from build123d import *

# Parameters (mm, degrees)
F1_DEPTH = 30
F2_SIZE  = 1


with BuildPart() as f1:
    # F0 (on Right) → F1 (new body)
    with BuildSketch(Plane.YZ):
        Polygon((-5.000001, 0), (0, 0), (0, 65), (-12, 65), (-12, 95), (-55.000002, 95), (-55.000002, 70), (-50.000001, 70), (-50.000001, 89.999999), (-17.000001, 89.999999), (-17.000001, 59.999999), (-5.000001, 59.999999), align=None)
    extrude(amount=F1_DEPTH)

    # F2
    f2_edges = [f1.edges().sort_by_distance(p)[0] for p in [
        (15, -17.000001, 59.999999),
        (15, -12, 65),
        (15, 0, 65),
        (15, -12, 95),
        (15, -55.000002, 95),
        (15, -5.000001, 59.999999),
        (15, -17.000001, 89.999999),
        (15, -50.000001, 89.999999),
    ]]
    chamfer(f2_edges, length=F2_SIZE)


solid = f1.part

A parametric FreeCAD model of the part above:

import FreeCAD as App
import Part
import Sketcher


def edges_at(feature, points):
    """Names of the edges that pass closest to the given points."""
    edges = feature.Shape.Edges
    near = lambda p: min(range(len(edges)), key=lambda i: edges[i].distToShape(Part.Vertex(*p))[0])
    return sorted({f"Edge{near(p) + 1}" for p in points})

doc = App.newDocument("Part")
body = doc.addObject("PartDesign::Body", "Body")

# Sketch on YZ plane
sketch1 = body.newObject("Sketcher::SketchObject", "Sketch")
sketch1.AttachmentSupport = (doc.getObject("YZ_Plane"), [""])
sketch1.MapMode = "FlatFace"
sketch1.addGeometry(Part.LineSegment(App.Vector(-5.000001, 0, 0), App.Vector(0, 0, 0)), False)
sketch1.addGeometry(Part.LineSegment(App.Vector(0, 0, 0), App.Vector(0, 65, 0)), False)
sketch1.addGeometry(Part.LineSegment(App.Vector(0, 65, 0), App.Vector(-12, 65, 0)), False)
sketch1.addGeometry(Part.LineSegment(App.Vector(-12, 65, 0), App.Vector(-12, 95, 0)), False)
sketch1.addGeometry(Part.LineSegment(App.Vector(-12, 95, 0), App.Vector(-55.000002, 95, 0)), False)
sketch1.addGeometry(Part.LineSegment(App.Vector(-55.000002, 95, 0), App.Vector(-55.000002, 70, 0)), False)
sketch1.addGeometry(Part.LineSegment(App.Vector(-55.000002, 70, 0), App.Vector(-50.000001, 70, 0)), False)
sketch1.addGeometry(Part.LineSegment(App.Vector(-50.000001, 70, 0), App.Vector(-50.000001, 89.999999, 0)), False)
sketch1.addGeometry(Part.LineSegment(App.Vector(-50.000001, 89.999999, 0), App.Vector(-17.000001, 89.999999, 0)), False)
sketch1.addGeometry(Part.LineSegment(App.Vector(-17.000001, 89.999999, 0), App.Vector(-17.000001, 59.999999, 0)), False)
sketch1.addGeometry(Part.LineSegment(App.Vector(-17.000001, 59.999999, 0), App.Vector(-5.000001, 59.999999, 0)), False)
sketch1.addGeometry(Part.LineSegment(App.Vector(-5.000001, 59.999999, 0), App.Vector(-5.000001, 0, 0)), False)
sketch1.addConstraint(Sketcher.Constraint("Coincident", 0, 2, 1, 1))
sketch1.addConstraint(Sketcher.Constraint("Coincident", 1, 2, 2, 1))
sketch1.addConstraint(Sketcher.Constraint("Coincident", 2, 2, 3, 1))
sketch1.addConstraint(Sketcher.Constraint("Coincident", 3, 2, 4, 1))
sketch1.addConstraint(Sketcher.Constraint("Coincident", 4, 2, 5, 1))
sketch1.addConstraint(Sketcher.Constraint("Coincident", 5, 2, 6, 1))
sketch1.addConstraint(Sketcher.Constraint("Coincident", 6, 2, 7, 1))
sketch1.addConstraint(Sketcher.Constraint("Coincident", 7, 2, 8, 1))
sketch1.addConstraint(Sketcher.Constraint("Coincident", 8, 2, 9, 1))
sketch1.addConstraint(Sketcher.Constraint("Coincident", 9, 2, 10, 1))
sketch1.addConstraint(Sketcher.Constraint("Coincident", 10, 2, 11, 1))
sketch1.addConstraint(Sketcher.Constraint("Coincident", 11, 2, 0, 1))
sketch1.addConstraint(Sketcher.Constraint("Horizontal", 0))
sketch1.addConstraint(Sketcher.Constraint("Vertical", 1))
sketch1.addConstraint(Sketcher.Constraint("Horizontal", 2))
sketch1.addConstraint(Sketcher.Constraint("Vertical", 3))
sketch1.addConstraint(Sketcher.Constraint("Horizontal", 4))
sketch1.addConstraint(Sketcher.Constraint("Vertical", 5))
sketch1.addConstraint(Sketcher.Constraint("Horizontal", 6))
sketch1.addConstraint(Sketcher.Constraint("Vertical", 7))
sketch1.addConstraint(Sketcher.Constraint("Horizontal", 8))
sketch1.addConstraint(Sketcher.Constraint("Vertical", 9))
sketch1.addConstraint(Sketcher.Constraint("Horizontal", 10))
sketch1.addConstraint(Sketcher.Constraint("Vertical", 11))
sketch1.addConstraint(Sketcher.Constraint("Coincident", 0, 2, -1, 1))
sketch1.addConstraint(Sketcher.Constraint("Equal", 0, 6))
sketch1.addConstraint(Sketcher.Constraint("Equal", 2, 10))
sketch1.addConstraint(Sketcher.Constraint("Equal", 3, 9))
sketch1.addConstraint(Sketcher.Constraint("DistanceX", 0, 1, 0, 2, 5.000001))
sketch1.addConstraint(Sketcher.Constraint("DistanceX", 2, 2, 2, 1, 12.0))
sketch1.addConstraint(Sketcher.Constraint("DistanceX", 8, 1, 8, 2, 33.0))
sketch1.addConstraint(Sketcher.Constraint("DistanceY", 1, 1, 1, 2, 65.0))
sketch1.addConstraint(Sketcher.Constraint("DistanceY", 3, 1, 3, 2, 30.0))
sketch1.addConstraint(Sketcher.Constraint("DistanceY", 5, 2, 5, 1, 25.0))
sketch1.addConstraint(Sketcher.Constraint("DistanceY", 7, 1, 7, 2, 19.999999))
pad1 = body.newObject("PartDesign::Pad", "Pad")
pad1.Profile = sketch1
pad1.Length = 30
doc.recompute()

chamfer = body.newObject("PartDesign::Chamfer", "Chamfer")
chamfer.Base = (pad1, edges_at(pad1, [
    (15, -17, 60),
    (15, -12, 65),
    (15, 0, 65),
    (15, -12, 95),
    (15, -55, 95),
    (15, -5, 60),
    (15, -17, 90),
    (15, -50, 90),
]))
chamfer.Size = 1

doc.recompute()
